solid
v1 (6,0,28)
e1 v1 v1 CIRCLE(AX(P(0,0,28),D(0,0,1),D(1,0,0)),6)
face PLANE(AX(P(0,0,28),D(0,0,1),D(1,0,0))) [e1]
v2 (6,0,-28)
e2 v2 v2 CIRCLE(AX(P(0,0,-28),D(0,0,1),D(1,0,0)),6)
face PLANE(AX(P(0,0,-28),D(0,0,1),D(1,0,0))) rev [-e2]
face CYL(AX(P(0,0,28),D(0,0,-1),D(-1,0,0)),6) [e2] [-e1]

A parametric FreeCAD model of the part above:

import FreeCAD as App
import Part
import Sketcher
Q = App.Units.Quantity

doc = App.newDocument("Part")
params = doc.addObject("Spreadsheet::Sheet", "Params")
for row, (alias, value) in enumerate([
    ("sketch1_diameter", "12 mm"),
    ("pad1_length", "56 mm"),
], start=1):
    params.set(f"A{row}", alias)
    params.set(f"B{row}", "=" + value)
    params.setAlias(f"B{row}", alias)

body = doc.addObject("PartDesign::Body", "Body")

# Sketch on XY plane
sketch1 = body.newObject("Sketcher::SketchObject", "Sketch")
sketch1.AttachmentSupport = (doc.getObject("XY_Plane"), [""])
sketch1.MapMode = "FlatFace"
sketch1.addGeometry(Part.Circle(App.Vector(0, 0, 0), App.Vector(0, 0, 1), 6), False)
sketch1.addConstraint([
    Sketcher.Constraint("Coincident", 0, 3, -1, 1),
    Sketcher.Constraint("Diameter", 0, Q("12 mm")),
])
sketch1.setExpression("Constraints[1]", "Params.sketch1_diameter")
pad1 = body.newObject("PartDesign::Pad", "Pad")
pad1.Profile = sketch1
pad1.setExpression("Length", "Params.pad1_length")
pad1.Midplane = True

doc.recompute()
